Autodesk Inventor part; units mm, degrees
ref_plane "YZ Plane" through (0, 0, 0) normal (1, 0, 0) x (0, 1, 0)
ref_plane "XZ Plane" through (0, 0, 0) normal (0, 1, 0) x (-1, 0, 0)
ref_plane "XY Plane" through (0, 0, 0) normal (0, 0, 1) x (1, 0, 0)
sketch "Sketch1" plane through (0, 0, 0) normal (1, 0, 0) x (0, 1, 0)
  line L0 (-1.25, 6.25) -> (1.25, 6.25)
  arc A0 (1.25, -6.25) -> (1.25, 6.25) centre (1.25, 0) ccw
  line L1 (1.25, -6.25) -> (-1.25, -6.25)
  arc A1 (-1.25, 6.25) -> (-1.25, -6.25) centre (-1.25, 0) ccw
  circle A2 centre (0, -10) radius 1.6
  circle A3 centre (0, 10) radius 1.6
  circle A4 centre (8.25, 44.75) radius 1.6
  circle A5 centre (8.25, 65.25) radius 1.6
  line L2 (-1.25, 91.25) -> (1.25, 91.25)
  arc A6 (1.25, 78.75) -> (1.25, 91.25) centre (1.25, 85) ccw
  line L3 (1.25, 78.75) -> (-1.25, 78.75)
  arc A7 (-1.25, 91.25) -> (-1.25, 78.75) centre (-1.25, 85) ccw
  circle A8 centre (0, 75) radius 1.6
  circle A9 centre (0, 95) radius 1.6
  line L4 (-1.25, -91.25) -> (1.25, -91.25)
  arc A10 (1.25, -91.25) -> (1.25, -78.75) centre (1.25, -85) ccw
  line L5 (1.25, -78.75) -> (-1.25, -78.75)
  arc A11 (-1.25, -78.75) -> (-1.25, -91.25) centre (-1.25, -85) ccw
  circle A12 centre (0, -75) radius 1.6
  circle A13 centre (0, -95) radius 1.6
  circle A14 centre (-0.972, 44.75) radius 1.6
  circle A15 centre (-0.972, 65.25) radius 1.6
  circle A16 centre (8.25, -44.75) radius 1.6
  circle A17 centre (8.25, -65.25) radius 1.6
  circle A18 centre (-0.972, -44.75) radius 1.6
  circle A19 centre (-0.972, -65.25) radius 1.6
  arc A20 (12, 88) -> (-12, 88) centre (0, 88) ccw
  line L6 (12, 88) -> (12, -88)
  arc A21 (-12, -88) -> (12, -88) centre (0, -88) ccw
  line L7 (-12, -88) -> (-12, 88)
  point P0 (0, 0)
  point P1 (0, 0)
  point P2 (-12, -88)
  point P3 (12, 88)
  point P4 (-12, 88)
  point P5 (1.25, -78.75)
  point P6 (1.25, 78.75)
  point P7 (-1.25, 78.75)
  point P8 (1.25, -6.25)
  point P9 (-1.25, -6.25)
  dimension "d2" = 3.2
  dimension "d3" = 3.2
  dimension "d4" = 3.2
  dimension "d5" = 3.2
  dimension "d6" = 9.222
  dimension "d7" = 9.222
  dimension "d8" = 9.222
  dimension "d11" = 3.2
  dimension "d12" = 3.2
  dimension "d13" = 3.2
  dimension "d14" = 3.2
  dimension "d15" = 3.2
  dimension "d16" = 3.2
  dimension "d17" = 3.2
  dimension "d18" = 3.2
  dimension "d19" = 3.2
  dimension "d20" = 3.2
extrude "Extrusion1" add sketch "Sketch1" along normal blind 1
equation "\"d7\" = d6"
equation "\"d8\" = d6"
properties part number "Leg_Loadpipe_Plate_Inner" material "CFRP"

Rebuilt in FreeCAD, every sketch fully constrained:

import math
import FreeCAD as App
import Part
import Sketcher
from FreeCAD import Vector

doc = App.newDocument("Part")
body = doc.addObject("PartDesign::Body", "Body")

sketch1 = body.newObject("Sketcher::SketchObject", "Sketch")
sketch1.AttachmentSupport = (doc.getObject("YZ_Plane"), [""])
sketch1.MapMode = "FlatFace"
sketch1.addGeometry([
    Part.LineSegment(Vector(12, -88, 0), Vector(12, 88, 0)),
    Part.ArcOfCircle(Part.Circle(Vector(0, 88, 0), Vector(0, 0, 1), 12), math.radians(0), math.radians(180)),
    Part.LineSegment(Vector(-12, 88, 0), Vector(-12, -88, 0)),
    Part.ArcOfCircle(Part.Circle(Vector(0, -88, 0), Vector(0, 0, 1), 12), math.radians(180), math.radians(360)),
    Part.Circle(Vector(-1, -65.2, 0), Vector(0, 0, 1), 1.6),
    Part.Circle(Vector(-1, -44.8, 0), Vector(0, 0, 1), 1.6),
    Part.Circle(Vector(0, -95, 0), Vector(0, 0, 1), 1.6),
    Part.LineSegment(Vector(1.2, -91.2, 0), Vector(-1.2, -91.2, 0)),
    Part.ArcOfCircle(Part.Circle(Vector(-1.2, -85, 0), Vector(0, 0, 1), 6.2), math.radians(90), math.radians(270)),
    Part.LineSegment(Vector(-1.2, -78.8, 0), Vector(1.2, -78.8, 0)),
    Part.ArcOfCircle(Part.Circle(Vector(1.2, -85, 0), Vector(0, 0, 1), 6.2), math.radians(-90), math.radians(90)),
    Part.Circle(Vector(0, -75, 0), Vector(0, 0, 1), 1.6),
    Part.Circle(Vector(8.2, -65.2, 0), Vector(0, 0, 1), 1.6),
    Part.Circle(Vector(0, -10, 0), Vector(0, 0, 1), 1.6),
    Part.Circle(Vector(8.2, -44.8, 0), Vector(0, 0, 1), 1.6),
    Part.Circle(Vector(-1, 44.8, 0), Vector(0, 0, 1), 1.6),
    Part.Circle(Vector(-1, 65.2, 0), Vector(0, 0, 1), 1.6),
    Part.ArcOfCircle(Part.Circle(Vector(-1.2, 0, 0), Vector(0, 0, 1), 6.2), math.radians(90), math.radians(270)),
    Part.LineSegment(Vector(-1.2, 6.2, 0), Vector(1.2, 6.2, 0)),
    Part.ArcOfCircle(Part.Circle(Vector(1.2, 0, 0), Vector(0, 0, 1), 6.2), math.radians(-90), math.radians(90)),
    Part.LineSegment(Vector(1.2, -6.2, 0), Vector(-1.2, -6.2, 0)),
    Part.Circle(Vector(0, 10, 0), Vector(0, 0, 1), 1.6),
    Part.Circle(Vector(8.2, 44.8, 0), Vector(0, 0, 1), 1.6),
    Part.Circle(Vector(0, 75, 0), Vector(0, 0, 1), 1.6),
    Part.ArcOfCircle(Part.Circle(Vector(-1.2, 85, 0), Vector(0, 0, 1), 6.2), math.radians(90), math.radians(270)),
    Part.LineSegment(Vector(-1.2, 91.2, 0), Vector(1.2, 91.2, 0)),
    Part.ArcOfCircle(Part.Circle(Vector(1.2, 85, 0), Vector(0, 0, 1), 6.2), math.radians(-90), math.radians(90)),
    Part.LineSegment(Vector(1.2, 78.8, 0), Vector(-1.2, 78.8, 0)),
    Part.Circle(Vector(0, 95, 0), Vector(0, 0, 1), 1.6),
    Part.Circle(Vector(8.2, 65.2, 0), Vector(0, 0, 1), 1.6),
], False)
sketch1.addConstraint([
    Sketcher.Constraint("Tangent", 0, 2, 1, 1),
    Sketcher.Constraint("Tangent", 1, 2, 2, 1),
    Sketcher.Constraint("Tangent", 2, 2, 3, 1),
    Sketcher.Constraint("Tangent", 3, 2, 0, 1),
    Sketcher.Constraint("Tangent", 7, 2, 8, 2),
    Sketcher.Constraint("Tangent", 8, 1, 9, 1),
    Sketcher.Constraint("Tangent", 9, 2, 10, 2),
    Sketcher.Constraint("Tangent", 10, 1, 7, 1),
    Sketcher.Constraint("Tangent", 17, 1, 18, 1),
    Sketcher.Constraint("Tangent", 18, 2, 19, 2),
    Sketcher.Constraint("Tangent", 19, 1, 20, 1),
    Sketcher.Constraint("Tangent", 20, 2, 17, 2),
    Sketcher.Constraint("Tangent", 24, 1, 25, 1),
    Sketcher.Constraint("Tangent", 25, 2, 26, 2),
    Sketcher.Constraint("Tangent", 26, 1, 27, 1),
    Sketcher.Constraint("Tangent", 27, 2, 24, 2),
    Sketcher.Constraint("Vertical", 0),
    Sketcher.Constraint("Vertical", 2),
    Sketcher.Constraint("Horizontal", 7),
    Sketcher.Constraint("Horizontal", 9),
    Sketcher.Constraint("Horizontal", 18),
    Sketcher.Constraint("Horizontal", 20),
    Sketcher.Constraint("Horizontal", 25),
    Sketcher.Constraint("Horizontal", 27),
    Sketcher.Constraint("Equal", 4, 5),
    Sketcher.Constraint("Equal", 5, 6),
    Sketcher.Constraint("Equal", 6, 11),
    Sketcher.Constraint("Equal", 11, 12),
    Sketcher.Constraint("Equal", 12, 13),
    Sketcher.Constraint("Equal", 13, 14),
    Sketcher.Constraint("Equal", 14, 15),
    Sketcher.Constraint("Equal", 15, 16),
    Sketcher.Constraint("Equal", 10, 17),
    Sketcher.Constraint("Equal", 16, 21),
    Sketcher.Constraint("Equal", 21, 22),
    Sketcher.Constraint("Equal", 22, 23),
    Sketcher.Constraint("Equal", 19, 24),
    Sketcher.Constraint("Equal", 23, 28),
    Sketcher.Constraint("Equal", 28, 29),
    Sketcher.Constraint("Symmetric", 1, 3, 3, 3, -1, 1),
    Sketcher.Constraint("Symmetric", 17, 3, 19, 3, -1, 1),
    Sketcher.Constraint("Symmetric", 13, 3, 21, 3, -1, 1),
    Sketcher.Constraint("Symmetric", 11, 3, 23, 3, -1, 1),
    Sketcher.Constraint("Symmetric", 10, 3, 24, 3, -1, 1),
    Sketcher.Constraint("Symmetric", 6, 3, 28, 3, -1, 1),
    Sketcher.Constraint("Symmetric", 5, 3, 15, 3, -1),
    Sketcher.Constraint("Symmetric", 4, 3, 16, 3, -1),
    Sketcher.Constraint("Symmetric", 14, 3, 22, 3, -1),
    Sketcher.Constraint("Symmetric", 12, 3, 29, 3, -1),
    Sketcher.Constraint("PointOnObject", 6, 3, -2),
    Sketcher.Constraint("PointOnObject", 11, 3, -2),
    Sketcher.Constraint("PointOnObject", 13, 3, -2),
    Sketcher.Constraint("Horizontal", 4, 3, 12, 3),
    Sketcher.Constraint("Horizontal", 5, 3, 14, 3),
    Sketcher.Constraint("Vertical", 4, 3, 5, 3),
    Sketcher.Constraint("Vertical", 12, 3, 14, 3),
    Sketcher.Constraint("Vertical", 8, 3, 17, 3),
    Sketcher.Constraint("Vertical", 10, 3, 19, 3),
    Sketcher.Constraint("Vertical", 19, 3, 26, 3),
    Sketcher.Constraint("Diameter", 4, 3.2),
    Sketcher.Constraint("Radius", 1, 12.0),
    Sketcher.Constraint("DistanceY", 0, 1, 0, 2, 176.0),
    Sketcher.Constraint("Radius", 8, 6.25),
    Sketcher.Constraint("DistanceX", 7, 2, 7, 1, 2.5),
    Sketcher.Constraint("DistanceY", 6, 3, -1, 1, 95.0),
    Sketcher.Constraint("DistanceY", 8, 3, -1, 1, 85.0),
    Sketcher.Constraint("DistanceY", 11, 3, -1, 1, 75.0),
    Sketcher.Constraint("DistanceY", 13, 3, -1, 1, 10.0),
    Sketcher.Constraint("DistanceX", 4, 3, 12, 3, 9.222),
    Sketcher.Constraint("DistanceX", 10, 3, 12, 3, 7.0),
    Sketcher.Constraint("DistanceY", 4, 3, 15, 3, 110.0),
    Sketcher.Constraint("DistanceY", 4, 3, 5, 3, 20.5),
])
pad1 = body.newObject("PartDesign::Pad", "Pad")
pad1.Profile = sketch1
pad1.Length = 1

doc.recompute()
